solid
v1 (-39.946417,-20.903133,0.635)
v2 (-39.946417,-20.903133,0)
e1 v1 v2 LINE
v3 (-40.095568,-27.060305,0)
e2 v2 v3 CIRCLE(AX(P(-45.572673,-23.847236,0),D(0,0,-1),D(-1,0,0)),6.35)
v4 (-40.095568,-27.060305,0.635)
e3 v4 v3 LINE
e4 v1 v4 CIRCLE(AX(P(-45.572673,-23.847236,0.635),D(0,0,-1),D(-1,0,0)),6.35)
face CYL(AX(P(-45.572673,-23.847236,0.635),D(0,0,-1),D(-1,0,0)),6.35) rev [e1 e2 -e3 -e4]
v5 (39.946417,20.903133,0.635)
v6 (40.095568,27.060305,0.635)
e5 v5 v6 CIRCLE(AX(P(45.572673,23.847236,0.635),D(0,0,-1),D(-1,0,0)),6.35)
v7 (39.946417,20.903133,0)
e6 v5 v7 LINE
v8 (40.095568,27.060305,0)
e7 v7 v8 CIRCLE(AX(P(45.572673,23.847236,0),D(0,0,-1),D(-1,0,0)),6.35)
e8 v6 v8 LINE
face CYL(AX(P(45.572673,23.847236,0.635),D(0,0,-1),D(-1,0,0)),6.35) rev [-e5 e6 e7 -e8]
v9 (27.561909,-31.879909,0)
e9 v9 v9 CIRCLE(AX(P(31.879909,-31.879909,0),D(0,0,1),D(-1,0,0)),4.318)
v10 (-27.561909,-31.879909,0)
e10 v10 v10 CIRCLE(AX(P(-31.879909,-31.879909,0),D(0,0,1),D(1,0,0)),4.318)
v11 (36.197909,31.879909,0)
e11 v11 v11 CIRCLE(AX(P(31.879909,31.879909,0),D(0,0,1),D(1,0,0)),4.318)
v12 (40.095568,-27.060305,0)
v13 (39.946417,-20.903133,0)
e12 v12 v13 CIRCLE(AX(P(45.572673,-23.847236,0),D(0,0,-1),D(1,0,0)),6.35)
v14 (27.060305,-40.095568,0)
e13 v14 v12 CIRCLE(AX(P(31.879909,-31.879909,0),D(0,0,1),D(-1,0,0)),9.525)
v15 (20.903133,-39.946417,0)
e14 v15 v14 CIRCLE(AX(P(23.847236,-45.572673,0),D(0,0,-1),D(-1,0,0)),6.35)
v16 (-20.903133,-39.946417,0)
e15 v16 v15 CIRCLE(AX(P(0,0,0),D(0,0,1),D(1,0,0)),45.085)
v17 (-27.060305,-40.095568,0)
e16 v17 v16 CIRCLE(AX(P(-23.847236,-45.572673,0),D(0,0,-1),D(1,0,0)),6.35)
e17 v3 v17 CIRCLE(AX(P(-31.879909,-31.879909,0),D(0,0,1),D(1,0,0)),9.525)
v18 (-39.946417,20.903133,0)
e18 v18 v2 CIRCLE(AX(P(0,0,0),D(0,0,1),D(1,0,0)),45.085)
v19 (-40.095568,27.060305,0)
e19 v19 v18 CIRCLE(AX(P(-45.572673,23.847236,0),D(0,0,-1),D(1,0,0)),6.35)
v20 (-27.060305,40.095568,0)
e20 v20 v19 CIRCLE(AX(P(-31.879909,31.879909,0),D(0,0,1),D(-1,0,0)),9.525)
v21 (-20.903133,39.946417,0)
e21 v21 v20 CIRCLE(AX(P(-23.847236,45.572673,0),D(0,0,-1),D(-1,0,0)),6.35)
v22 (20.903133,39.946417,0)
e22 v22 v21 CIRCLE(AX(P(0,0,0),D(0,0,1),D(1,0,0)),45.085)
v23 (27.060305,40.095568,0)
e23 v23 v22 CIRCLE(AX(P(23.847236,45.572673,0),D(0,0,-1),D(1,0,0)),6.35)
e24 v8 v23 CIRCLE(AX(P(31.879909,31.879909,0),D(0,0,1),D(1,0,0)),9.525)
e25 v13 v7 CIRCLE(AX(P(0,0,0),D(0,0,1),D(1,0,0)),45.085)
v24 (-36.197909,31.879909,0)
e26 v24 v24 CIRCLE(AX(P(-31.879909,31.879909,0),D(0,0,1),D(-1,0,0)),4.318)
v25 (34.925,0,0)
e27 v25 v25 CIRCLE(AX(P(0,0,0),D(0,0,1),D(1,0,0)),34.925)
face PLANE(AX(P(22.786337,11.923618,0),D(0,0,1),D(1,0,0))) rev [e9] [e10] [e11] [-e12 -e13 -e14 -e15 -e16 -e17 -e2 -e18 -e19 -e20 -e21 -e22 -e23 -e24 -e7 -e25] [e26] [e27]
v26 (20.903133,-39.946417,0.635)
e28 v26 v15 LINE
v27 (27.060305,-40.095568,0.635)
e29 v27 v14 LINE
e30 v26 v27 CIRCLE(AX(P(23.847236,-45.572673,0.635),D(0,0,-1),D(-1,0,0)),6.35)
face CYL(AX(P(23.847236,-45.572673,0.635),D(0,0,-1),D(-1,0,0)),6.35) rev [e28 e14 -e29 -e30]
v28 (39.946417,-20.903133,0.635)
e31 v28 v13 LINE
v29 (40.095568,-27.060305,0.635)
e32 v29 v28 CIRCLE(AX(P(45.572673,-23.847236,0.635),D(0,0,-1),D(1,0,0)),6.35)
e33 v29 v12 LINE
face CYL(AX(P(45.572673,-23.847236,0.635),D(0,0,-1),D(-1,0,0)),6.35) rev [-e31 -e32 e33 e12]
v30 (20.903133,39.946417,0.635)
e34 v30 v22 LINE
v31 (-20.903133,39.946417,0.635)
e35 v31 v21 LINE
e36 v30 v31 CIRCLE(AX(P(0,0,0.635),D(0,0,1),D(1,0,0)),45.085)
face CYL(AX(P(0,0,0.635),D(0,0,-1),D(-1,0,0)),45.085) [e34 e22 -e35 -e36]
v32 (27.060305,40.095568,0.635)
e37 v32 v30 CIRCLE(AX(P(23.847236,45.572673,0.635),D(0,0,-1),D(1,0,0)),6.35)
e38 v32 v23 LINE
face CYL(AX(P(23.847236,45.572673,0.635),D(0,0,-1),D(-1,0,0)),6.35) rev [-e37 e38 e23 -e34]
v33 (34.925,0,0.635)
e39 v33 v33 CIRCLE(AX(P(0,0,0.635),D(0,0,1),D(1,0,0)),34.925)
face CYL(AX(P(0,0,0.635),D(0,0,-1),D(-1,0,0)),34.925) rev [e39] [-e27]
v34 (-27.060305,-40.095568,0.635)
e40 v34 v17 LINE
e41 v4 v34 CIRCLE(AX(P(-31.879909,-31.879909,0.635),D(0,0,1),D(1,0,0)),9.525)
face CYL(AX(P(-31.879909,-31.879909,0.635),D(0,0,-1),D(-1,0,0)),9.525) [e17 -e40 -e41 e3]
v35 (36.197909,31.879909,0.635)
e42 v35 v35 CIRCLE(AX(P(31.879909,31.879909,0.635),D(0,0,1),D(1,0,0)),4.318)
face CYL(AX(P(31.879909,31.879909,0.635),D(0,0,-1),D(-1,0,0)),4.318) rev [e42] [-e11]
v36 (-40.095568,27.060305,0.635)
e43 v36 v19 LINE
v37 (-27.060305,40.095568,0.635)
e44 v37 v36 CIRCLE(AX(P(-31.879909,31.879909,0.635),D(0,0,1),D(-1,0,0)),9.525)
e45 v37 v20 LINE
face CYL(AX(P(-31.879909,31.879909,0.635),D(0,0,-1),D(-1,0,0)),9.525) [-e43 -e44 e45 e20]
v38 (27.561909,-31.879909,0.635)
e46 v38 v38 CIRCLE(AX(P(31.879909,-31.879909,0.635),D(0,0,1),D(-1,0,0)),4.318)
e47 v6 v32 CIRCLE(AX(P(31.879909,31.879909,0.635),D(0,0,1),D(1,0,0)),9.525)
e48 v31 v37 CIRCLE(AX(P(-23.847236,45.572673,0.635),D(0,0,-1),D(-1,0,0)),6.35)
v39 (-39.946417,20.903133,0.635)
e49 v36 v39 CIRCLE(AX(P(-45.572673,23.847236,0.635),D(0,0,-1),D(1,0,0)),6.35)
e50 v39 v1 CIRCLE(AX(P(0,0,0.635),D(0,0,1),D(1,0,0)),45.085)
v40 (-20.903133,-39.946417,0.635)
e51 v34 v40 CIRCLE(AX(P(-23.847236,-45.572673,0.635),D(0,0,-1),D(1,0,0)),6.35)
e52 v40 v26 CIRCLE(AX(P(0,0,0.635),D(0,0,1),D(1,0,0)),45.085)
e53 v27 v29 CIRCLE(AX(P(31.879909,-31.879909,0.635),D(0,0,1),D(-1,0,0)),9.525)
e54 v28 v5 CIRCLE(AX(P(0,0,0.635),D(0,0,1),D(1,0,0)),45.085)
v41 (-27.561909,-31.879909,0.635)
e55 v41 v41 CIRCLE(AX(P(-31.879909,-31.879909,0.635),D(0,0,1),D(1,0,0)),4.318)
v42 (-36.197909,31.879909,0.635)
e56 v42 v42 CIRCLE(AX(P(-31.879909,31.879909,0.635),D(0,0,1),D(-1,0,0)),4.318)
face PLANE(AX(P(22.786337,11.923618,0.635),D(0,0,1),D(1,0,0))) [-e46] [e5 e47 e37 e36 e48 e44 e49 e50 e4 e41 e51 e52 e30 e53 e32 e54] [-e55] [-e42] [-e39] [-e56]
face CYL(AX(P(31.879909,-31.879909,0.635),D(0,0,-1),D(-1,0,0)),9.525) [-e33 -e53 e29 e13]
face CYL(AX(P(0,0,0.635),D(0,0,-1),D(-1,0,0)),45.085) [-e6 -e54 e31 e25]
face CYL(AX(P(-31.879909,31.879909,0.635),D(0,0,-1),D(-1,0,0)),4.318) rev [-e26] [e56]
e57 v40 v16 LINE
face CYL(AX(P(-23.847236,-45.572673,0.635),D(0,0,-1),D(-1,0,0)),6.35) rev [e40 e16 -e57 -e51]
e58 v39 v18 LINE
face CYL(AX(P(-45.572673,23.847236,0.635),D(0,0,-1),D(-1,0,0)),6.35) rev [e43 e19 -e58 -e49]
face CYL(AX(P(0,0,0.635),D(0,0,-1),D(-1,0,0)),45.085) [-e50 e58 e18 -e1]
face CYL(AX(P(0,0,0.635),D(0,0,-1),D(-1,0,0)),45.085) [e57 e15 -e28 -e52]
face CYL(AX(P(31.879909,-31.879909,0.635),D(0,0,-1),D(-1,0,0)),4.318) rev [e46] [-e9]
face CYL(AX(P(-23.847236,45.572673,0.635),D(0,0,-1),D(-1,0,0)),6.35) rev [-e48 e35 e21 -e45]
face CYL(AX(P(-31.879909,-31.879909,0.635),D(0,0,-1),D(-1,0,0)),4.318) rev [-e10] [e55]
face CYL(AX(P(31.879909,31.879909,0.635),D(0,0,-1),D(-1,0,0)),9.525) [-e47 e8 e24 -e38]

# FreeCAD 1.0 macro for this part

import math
import FreeCAD as App
import Part
import Sketcher
Q = App.Units.Quantity

doc = App.newDocument("Part")
params = doc.addObject("Spreadsheet::Sheet", "Params")
for row, (alias, value) in enumerate([
    ("sketch1_diameter", "0.34 in"),
    ("sketch1_diameter2", "2.75 in"),
    ("sketch1_radius", "0.25 in"),
    ("sketch1_radius2", "1.775 in"),
    ("sketch1_radius3", "0.375 in"),
    ("pad1_length", "0.025 in"),
], start=1):
    params.set(f"A{row}", alias)
    params.set(f"B{row}", "=" + value)
    params.setAlias(f"B{row}", alias)

body = doc.addObject("PartDesign::Body", "Body")

# Sketch on XY plane
sketch1 = body.newObject("Sketcher::SketchObject", "Sketch")
sketch1.AttachmentSupport = (doc.getObject("XY_Plane"), [""])
sketch1.MapMode = "FlatFace"
sketch1.addGeometry([
    Part.ArcOfCircle(Part.Circle(App.Vector(0, 0, 0), App.Vector(0, 0, 1), 45.085), math.radians(62.377869), math.radians(117.622131)),  # 0
    Part.ArcOfCircle(Part.Circle(App.Vector(-23.847236, 45.572673, 0), App.Vector(0, 0, 1), 6.35), math.radians(-120.397435), math.radians(-62.377869)),  # 1
    Part.ArcOfCircle(Part.Circle(App.Vector(-31.879909, 31.879909, 0), App.Vector(0, 0, 1), 9.525), math.radians(59.602565), math.radians(210.397435)),  # 2
    Part.ArcOfCircle(Part.Circle(App.Vector(-45.572673, 23.847236, 0), App.Vector(0, 0, 1), 6.35), math.radians(-27.622131), math.radians(30.397435)),  # 3
    Part.ArcOfCircle(Part.Circle(App.Vector(0, 0, 0), App.Vector(0, 0, 1), 45.085), math.radians(152.377869), math.radians(207.622131)),  # 4
    Part.ArcOfCircle(Part.Circle(App.Vector(-45.572673, -23.847236, 0), App.Vector(0, 0, 1), 6.35), math.radians(-30.397435), math.radians(27.622131)),  # 5
    Part.ArcOfCircle(Part.Circle(App.Vector(-31.879909, -31.879909, 0), App.Vector(0, 0, 1), 9.525), math.radians(149.602565), math.radians(300.397435)),  # 6
    Part.ArcOfCircle(Part.Circle(App.Vector(-23.847236, -45.572673, 0), App.Vector(0, 0, 1), 6.35), math.radians(62.377869), math.radians(120.397435)),  # 7
    Part.ArcOfCircle(Part.Circle(App.Vector(0, 0, 0), App.Vector(0, 0, 1), 45.085), math.radians(-117.622131), math.radians(-62.377869)),  # 8
    Part.ArcOfCircle(Part.Circle(App.Vector(23.847236, -45.572673, 0), App.Vector(0, 0, 1), 6.35), math.radians(59.602565), math.radians(117.622131)),  # 9
    Part.ArcOfCircle(Part.Circle(App.Vector(31.879909, -31.879909, 0), App.Vector(0, 0, 1), 9.525), math.radians(-120.397435), math.radians(30.397435)),  # 10
    Part.ArcOfCircle(Part.Circle(App.Vector(45.572673, -23.847236, 0), App.Vector(0, 0, 1), 6.35), math.radians(152.377869), math.radians(210.397435)),  # 11
    Part.ArcOfCircle(Part.Circle(App.Vector(0, 0, 0), App.Vector(0, 0, 1), 45.085), math.radians(-27.622131), math.radians(27.622131)),  # 12
    Part.ArcOfCircle(Part.Circle(App.Vector(45.572673, 23.847236, 0), App.Vector(0, 0, 1), 6.35), math.radians(149.602565), math.radians(207.622131)),  # 13
    Part.ArcOfCircle(Part.Circle(App.Vector(31.879909, 31.879909, 0), App.Vector(0, 0, 1), 9.525), math.radians(-30.397435), math.radians(120.397435)),  # 14
    Part.ArcOfCircle(Part.Circle(App.Vector(23.847236, 45.572673, 0), App.Vector(0, 0, 1), 6.35), math.radians(-117.622131), math.radians(-59.602565)),  # 15
    Part.Circle(App.Vector(-31.879909, -31.879909, 0), App.Vector(0, 0, 1), 4.318),  # 16
    Part.Circle(App.Vector(31.879909, -31.879909, 0), App.Vector(0, 0, 1), 4.318),  # 17
    Part.Circle(App.Vector(0, 0, 0), App.Vector(0, 0, 1), 34.925),  # 18
    Part.Circle(App.Vector(-31.879909, 31.879909, 0), App.Vector(0, 0, 1), 4.318),  # 19
    Part.Circle(App.Vector(31.879909, 31.879909, 0), App.Vector(0, 0, 1), 4.318),  # 20
], False)
sketch1.addConstraint([
    Sketcher.Constraint("Tangent", 0, 2, 1, 2),
    Sketcher.Constraint("Tangent", 1, 1, 2, 1),
    Sketcher.Constraint("Tangent", 2, 2, 3, 2),
    Sketcher.Constraint("Tangent", 3, 1, 4, 1),
    Sketcher.Constraint("Tangent", 4, 2, 5, 2),
    Sketcher.Constraint("Tangent", 5, 1, 6, 1),
    Sketcher.Constraint("Tangent", 6, 2, 7, 2),
    Sketcher.Constraint("Tangent", 7, 1, 8, 1),
    Sketcher.Constraint("Tangent", 8, 2, 9, 2),
    Sketcher.Constraint("Tangent", 9, 1, 10, 1),
    Sketcher.Constraint("Tangent", 10, 2, 11, 2),
    Sketcher.Constraint("Tangent", 11, 1, 12, 1),
    Sketcher.Constraint("Tangent", 12, 2, 13, 2),
    Sketcher.Constraint("Tangent", 13, 1, 14, 1),
    Sketcher.Constraint("Tangent", 14, 2, 15, 2),
    Sketcher.Constraint("Tangent", 15, 1, 0, 1),
    Sketcher.Constraint("Coincident", 0, 3, -1, 1),
    Sketcher.Constraint("Coincident", 4, 3, -1, 1),
    Sketcher.Constraint("Coincident", 8, 3, -1, 1),
    Sketcher.Constraint("Coincident", 12, 3, -1, 1),
    Sketcher.Constraint("Coincident", 18, 3, -1, 1),
    Sketcher.Constraint("Coincident", 16, 3, 6, 3),
    Sketcher.Constraint("Coincident", 17, 3, 10, 3),
    Sketcher.Constraint("Coincident", 19, 3, 2, 3),
    Sketcher.Constraint("Coincident", 20, 3, 14, 3),
    Sketcher.Constraint("Equal", 1, 3),
    Sketcher.Constraint("Equal", 0, 4),
    Sketcher.Constraint("Equal", 3, 5),
    Sketcher.Constraint("Equal", 2, 6),
    Sketcher.Constraint("Equal", 5, 7),
    Sketcher.Constraint("Equal", 4, 8),
    Sketcher.Constraint("Equal", 7, 9),
    Sketcher.Constraint("Equal", 6, 10),
    Sketcher.Constraint("Equal", 9, 11),
    Sketcher.Constraint("Equal", 8, 12),
    Sketcher.Constraint("Equal", 11, 13),
    Sketcher.Constraint("Equal", 10, 14),
    Sketcher.Constraint("Equal", 13, 15),
    Sketcher.Constraint("Equal", 16, 17),
    Sketcher.Constraint("Equal", 17, 19),
    Sketcher.Constraint("Equal", 19, 20),
    Sketcher.Constraint("Symmetric", 2, 3, 10, 3, -1, 1),
    Sketcher.Constraint("Symmetric", 6, 3, 14, 3, -1, 1),
    Sketcher.Constraint("Symmetric", 6, 3, 10, 3, -2),
    Sketcher.Constraint("Diameter", 16, Q("0.34 in")),
    Sketcher.Constraint("Diameter", 18, Q("2.75 in")),
    Sketcher.Constraint("Radius", 1, Q("0.25 in")),
    Sketcher.Constraint("Radius", 0, Q("1.775 in")),
    Sketcher.Constraint("Radius", 2, Q("0.375 in")),
    Sketcher.Constraint("DistanceX", 2, 3, -1, 1, 31.879909),
    Sketcher.Constraint("DistanceY", -1, 1, 2, 3, 31.879909),
])
sketch1.setExpression("Constraints[44]", "Params.sketch1_diameter")
sketch1.setExpression("Constraints[45]", "Params.sketch1_diameter2")
sketch1.setExpression("Constraints[46]", "Params.sketch1_radius")
sketch1.setExpression("Constraints[47]", "Params.sketch1_radius2")
sketch1.setExpression("Constraints[48]", "Params.sketch1_radius3")
pad1 = body.newObject("PartDesign::Pad", "Pad")
pad1.Profile = sketch1
pad1.setExpression("Length", "Params.pad1_length")

doc.recompute()
